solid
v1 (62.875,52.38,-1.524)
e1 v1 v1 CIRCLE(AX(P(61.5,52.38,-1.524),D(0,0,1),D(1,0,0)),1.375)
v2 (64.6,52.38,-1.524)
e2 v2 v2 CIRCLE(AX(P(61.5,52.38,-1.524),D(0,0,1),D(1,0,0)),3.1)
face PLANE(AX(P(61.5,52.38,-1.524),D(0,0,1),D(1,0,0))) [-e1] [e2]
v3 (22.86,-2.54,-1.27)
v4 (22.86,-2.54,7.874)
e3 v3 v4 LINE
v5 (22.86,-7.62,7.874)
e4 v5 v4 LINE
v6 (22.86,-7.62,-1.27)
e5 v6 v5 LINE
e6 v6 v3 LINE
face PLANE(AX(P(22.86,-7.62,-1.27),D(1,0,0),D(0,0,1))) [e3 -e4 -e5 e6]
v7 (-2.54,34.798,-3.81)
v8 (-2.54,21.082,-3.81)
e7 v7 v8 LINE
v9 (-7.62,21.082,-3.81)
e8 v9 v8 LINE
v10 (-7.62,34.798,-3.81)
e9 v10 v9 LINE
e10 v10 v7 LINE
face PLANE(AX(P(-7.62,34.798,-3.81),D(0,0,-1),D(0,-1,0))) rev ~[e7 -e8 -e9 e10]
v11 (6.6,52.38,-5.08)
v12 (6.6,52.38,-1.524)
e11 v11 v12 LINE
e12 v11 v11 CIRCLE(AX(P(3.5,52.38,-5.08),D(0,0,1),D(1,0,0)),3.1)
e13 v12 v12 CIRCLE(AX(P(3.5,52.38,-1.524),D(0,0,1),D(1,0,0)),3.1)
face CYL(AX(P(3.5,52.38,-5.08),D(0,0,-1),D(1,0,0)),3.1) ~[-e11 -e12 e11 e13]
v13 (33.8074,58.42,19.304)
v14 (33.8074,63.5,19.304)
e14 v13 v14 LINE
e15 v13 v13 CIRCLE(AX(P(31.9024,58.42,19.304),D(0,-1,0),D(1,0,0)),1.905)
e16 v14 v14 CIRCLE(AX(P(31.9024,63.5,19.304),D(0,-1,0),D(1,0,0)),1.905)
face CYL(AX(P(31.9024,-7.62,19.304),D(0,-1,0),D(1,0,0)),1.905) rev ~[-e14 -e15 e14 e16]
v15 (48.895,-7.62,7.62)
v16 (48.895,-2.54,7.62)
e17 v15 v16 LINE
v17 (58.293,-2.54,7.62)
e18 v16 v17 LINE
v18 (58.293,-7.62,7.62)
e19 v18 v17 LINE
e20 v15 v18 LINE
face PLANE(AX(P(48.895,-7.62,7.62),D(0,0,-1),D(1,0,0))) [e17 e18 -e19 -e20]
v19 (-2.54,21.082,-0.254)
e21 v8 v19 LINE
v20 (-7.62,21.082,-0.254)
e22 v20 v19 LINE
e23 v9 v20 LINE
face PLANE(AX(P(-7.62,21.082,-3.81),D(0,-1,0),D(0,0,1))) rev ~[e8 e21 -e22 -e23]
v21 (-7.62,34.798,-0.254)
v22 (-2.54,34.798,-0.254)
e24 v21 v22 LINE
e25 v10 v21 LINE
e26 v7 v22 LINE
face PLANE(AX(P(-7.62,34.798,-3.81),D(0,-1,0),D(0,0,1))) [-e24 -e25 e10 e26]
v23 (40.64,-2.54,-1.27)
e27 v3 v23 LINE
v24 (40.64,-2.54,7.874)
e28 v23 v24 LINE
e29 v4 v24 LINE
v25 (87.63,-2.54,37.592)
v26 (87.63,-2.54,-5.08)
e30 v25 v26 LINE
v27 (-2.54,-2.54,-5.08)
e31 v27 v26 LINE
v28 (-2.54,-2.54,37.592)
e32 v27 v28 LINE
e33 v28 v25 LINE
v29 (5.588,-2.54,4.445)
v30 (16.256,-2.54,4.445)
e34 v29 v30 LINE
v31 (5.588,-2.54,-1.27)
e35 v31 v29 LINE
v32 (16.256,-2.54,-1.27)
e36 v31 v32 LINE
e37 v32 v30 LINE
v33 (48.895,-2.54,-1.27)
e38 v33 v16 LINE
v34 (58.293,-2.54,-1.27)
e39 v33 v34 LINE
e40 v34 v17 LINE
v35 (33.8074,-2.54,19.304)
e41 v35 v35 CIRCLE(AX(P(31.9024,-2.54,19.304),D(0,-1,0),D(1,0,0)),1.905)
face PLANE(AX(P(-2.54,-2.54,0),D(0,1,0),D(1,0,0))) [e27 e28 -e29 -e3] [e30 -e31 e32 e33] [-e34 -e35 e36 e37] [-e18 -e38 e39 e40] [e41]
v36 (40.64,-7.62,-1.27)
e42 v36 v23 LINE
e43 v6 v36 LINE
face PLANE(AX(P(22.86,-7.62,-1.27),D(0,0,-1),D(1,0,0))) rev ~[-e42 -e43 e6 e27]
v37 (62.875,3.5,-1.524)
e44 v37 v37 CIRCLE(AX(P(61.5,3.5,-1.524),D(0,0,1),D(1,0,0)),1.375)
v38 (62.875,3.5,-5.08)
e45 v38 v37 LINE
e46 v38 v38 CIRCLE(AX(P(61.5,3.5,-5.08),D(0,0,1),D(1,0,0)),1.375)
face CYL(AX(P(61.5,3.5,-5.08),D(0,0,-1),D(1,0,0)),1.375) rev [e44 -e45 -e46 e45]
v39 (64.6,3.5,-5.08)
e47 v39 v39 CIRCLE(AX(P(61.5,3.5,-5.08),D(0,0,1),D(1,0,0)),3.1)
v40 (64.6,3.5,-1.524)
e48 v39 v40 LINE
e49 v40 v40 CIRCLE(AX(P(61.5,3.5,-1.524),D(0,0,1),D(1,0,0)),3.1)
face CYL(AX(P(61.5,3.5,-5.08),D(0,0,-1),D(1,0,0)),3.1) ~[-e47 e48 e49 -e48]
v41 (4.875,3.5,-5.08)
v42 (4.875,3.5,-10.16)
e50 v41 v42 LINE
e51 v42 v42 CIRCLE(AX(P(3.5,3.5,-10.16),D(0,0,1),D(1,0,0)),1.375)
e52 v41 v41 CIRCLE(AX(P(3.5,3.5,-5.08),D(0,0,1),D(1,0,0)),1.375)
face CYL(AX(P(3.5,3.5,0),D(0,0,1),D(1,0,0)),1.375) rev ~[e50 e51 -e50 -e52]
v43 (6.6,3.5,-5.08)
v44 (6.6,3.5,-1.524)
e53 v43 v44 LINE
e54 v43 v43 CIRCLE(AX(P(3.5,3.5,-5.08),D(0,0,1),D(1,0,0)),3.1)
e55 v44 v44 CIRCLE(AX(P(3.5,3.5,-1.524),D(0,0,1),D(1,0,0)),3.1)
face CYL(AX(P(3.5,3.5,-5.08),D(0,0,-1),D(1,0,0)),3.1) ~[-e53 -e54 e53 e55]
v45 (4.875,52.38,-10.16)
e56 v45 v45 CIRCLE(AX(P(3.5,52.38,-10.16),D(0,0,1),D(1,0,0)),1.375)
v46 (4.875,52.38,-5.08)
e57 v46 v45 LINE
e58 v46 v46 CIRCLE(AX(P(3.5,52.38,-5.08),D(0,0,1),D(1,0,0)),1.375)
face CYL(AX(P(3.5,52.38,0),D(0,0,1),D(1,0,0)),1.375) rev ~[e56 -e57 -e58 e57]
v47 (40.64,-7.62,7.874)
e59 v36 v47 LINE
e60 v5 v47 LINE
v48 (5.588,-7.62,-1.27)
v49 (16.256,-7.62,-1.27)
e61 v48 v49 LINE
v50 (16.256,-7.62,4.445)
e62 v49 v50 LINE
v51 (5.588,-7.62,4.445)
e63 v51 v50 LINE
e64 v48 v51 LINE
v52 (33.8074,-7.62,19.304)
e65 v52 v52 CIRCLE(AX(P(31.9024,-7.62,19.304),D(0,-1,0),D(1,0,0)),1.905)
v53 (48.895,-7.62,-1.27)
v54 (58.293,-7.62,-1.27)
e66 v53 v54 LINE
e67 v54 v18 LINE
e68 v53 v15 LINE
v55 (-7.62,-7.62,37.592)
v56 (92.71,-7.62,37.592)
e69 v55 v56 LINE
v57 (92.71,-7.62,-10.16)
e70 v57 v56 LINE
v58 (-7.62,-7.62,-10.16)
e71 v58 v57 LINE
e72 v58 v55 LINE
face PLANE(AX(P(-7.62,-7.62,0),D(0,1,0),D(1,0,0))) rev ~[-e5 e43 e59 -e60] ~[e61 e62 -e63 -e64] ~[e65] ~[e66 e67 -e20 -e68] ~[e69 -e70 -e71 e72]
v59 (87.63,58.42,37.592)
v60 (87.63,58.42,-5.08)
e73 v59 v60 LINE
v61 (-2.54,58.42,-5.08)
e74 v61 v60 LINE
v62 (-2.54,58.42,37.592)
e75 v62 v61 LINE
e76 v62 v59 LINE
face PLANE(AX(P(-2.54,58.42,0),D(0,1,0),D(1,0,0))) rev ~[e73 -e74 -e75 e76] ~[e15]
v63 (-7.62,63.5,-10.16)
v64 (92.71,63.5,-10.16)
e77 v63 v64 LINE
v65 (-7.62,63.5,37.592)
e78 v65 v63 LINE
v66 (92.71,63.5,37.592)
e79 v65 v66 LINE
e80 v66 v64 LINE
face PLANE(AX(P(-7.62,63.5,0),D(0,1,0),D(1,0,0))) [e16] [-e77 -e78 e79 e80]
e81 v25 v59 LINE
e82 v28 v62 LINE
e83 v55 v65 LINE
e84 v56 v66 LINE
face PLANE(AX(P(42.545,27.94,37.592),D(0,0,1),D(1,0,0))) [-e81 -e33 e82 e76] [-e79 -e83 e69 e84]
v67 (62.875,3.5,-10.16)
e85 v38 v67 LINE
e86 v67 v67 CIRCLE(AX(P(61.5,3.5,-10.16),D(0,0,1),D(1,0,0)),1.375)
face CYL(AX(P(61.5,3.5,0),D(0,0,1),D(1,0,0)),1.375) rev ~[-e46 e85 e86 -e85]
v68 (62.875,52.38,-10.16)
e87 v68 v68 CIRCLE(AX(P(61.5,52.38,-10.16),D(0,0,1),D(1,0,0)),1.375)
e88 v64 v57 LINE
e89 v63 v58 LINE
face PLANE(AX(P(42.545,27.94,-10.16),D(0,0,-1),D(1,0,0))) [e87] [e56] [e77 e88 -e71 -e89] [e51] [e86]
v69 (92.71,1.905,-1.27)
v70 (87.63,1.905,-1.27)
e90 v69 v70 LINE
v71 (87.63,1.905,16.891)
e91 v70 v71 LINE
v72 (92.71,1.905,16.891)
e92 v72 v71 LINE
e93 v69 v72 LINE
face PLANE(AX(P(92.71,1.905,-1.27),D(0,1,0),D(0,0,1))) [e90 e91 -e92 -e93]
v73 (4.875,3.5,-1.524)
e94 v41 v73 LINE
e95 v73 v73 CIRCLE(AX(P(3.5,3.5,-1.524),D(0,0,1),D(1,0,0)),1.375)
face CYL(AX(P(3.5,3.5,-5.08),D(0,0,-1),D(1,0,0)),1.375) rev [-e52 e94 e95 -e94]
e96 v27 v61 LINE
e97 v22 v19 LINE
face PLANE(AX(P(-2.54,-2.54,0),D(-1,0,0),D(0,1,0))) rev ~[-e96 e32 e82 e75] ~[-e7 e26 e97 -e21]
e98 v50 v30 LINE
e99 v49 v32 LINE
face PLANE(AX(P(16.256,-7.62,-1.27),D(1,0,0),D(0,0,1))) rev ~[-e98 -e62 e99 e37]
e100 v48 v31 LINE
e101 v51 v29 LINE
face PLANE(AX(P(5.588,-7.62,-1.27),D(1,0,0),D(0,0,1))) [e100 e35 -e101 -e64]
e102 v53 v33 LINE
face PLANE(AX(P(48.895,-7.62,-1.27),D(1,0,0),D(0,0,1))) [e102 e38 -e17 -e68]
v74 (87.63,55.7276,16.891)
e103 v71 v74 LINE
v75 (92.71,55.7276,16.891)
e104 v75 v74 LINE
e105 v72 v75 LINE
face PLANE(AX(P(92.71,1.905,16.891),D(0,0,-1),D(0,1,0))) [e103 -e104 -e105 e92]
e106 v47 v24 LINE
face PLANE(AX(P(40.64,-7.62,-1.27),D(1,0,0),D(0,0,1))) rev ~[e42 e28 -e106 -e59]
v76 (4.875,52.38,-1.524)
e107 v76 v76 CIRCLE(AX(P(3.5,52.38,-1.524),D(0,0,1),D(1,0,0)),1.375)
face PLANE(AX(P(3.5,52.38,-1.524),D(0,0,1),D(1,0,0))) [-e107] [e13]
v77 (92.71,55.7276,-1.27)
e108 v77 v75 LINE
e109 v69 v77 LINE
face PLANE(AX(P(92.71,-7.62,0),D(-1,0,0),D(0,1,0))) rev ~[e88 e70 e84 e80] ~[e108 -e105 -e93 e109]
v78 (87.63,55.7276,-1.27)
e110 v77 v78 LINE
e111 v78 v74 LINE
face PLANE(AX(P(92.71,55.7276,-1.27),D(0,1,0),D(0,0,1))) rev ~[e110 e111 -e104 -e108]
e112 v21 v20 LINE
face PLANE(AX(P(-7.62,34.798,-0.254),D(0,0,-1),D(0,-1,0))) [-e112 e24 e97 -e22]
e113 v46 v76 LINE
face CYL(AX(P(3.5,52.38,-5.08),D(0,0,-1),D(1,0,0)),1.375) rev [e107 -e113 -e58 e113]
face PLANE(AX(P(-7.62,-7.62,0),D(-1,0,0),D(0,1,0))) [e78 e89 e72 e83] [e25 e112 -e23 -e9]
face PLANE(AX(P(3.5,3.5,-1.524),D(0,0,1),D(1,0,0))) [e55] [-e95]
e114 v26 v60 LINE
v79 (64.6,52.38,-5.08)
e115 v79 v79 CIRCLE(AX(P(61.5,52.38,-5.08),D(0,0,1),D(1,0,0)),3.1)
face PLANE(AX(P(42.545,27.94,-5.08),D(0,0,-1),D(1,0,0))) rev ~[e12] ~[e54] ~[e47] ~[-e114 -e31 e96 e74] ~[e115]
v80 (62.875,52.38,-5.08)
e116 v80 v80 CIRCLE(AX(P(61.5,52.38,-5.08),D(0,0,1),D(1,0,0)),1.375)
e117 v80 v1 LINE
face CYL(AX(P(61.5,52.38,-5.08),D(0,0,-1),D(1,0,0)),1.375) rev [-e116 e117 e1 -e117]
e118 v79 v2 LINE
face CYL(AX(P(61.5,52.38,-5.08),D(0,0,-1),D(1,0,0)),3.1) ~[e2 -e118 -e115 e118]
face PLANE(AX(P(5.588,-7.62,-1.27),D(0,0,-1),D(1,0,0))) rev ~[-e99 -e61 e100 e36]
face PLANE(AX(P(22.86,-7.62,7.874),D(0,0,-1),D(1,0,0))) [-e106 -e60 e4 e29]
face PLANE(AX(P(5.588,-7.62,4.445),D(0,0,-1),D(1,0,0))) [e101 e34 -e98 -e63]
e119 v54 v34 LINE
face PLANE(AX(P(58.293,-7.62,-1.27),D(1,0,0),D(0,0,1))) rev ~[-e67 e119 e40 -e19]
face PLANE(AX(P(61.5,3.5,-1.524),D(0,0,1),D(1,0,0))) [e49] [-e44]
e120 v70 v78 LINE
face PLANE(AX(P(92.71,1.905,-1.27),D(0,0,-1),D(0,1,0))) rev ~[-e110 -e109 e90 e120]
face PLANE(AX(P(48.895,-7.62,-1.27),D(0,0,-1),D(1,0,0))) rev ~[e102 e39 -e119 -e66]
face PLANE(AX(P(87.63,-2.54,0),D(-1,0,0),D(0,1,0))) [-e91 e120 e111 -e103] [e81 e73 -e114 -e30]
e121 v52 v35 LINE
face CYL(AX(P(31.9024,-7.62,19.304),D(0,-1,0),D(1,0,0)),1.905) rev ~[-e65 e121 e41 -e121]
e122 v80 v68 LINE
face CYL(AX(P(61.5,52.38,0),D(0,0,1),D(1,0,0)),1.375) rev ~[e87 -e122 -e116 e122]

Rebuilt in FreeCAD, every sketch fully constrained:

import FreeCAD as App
import Part
import Sketcher

V = App.Vector
Q = App.Units.Quantity


def add_polygon(sketch, points):
    """Adds a closed chain of lines whose ends are joined by coincident constraints."""
    first, n = sketch.GeometryCount, len(points)
    for a, b in zip(points, points[1:] + points[:1]):
        sketch.addGeometry(Part.LineSegment(App.Vector(*a, 0), App.Vector(*b, 0)), False)
    for i in range(n):
        sketch.addConstraint(Sketcher.Constraint("Coincident", first + i, 2, first + (i + 1) % n, 1))

doc = App.newDocument("Part")
body = doc.addObject("PartDesign::Body", "Body")

sketch1 = body.newObject("Sketcher::SketchObject", "Sketch")
sketch1.AttachmentSupport = (doc.getObject("XY_Plane"), [""])
sketch1.MapMode = "FlatFace"
add_polygon(sketch1, [(-7.62, 63.5), (-7.62, -7.62), (92.71, -7.62), (92.71, 63.5)])
add_polygon(sketch1, [(87.63, -2.54), (-2.54, -2.54), (-2.54, 58.42), (87.63, 58.42)])
sketch1.addConstraint([
    Sketcher.Constraint("Vertical", 0),
    Sketcher.Constraint("Horizontal", 1),
    Sketcher.Constraint("Vertical", 2),
    Sketcher.Constraint("Horizontal", 3),
    Sketcher.Constraint("Horizontal", 4),
    Sketcher.Constraint("Vertical", 5),
    Sketcher.Constraint("Horizontal", 6),
    Sketcher.Constraint("Vertical", 7),
    Sketcher.Constraint("DistanceY", 0, 2, 0, 1, Q("2.8 in")),
    Sketcher.Constraint("DistanceY", 5, 1, 5, 2, Q("2.4 in")),
    Sketcher.Constraint("DistanceX", 1, 1, 1, 2, Q("3.95 in")),
    Sketcher.Constraint("DistanceX", 4, 2, 4, 1, Q("3.55 in")),
    Sketcher.Constraint("DistanceX", 0, 2, -1, 1, Q("0.3 in")),
    Sketcher.Constraint("DistanceY", 0, 2, -1, 1, Q("0.3 in")),
    Sketcher.Constraint("DistanceX", 4, 2, -1, 1, Q("0.1 in")),
    Sketcher.Constraint("DistanceY", 4, 2, -1, 1, Q("0.1 in")),
])
pad1 = body.newObject("PartDesign::Pad", "Pad")
pad1.Profile = sketch1
pad1.Length = Q("0.2 in")
pad1.Reversed = True

sketch2 = body.newObject("Sketcher::SketchObject", "Sketch001")
sketch2.AttachmentSupport = (doc.getObject("XY_Plane"), [""])
sketch2.MapMode = "FlatFace"
sketch2.AttachmentOffset = App.Placement(V(0, 0, -0.2 * 25.4), App.Rotation())
add_polygon(sketch2, [(-7.62, -7.62), (-7.62, 63.5), (92.71, 63.5), (92.71, -7.62)])
sketch2.addConstraint([
    Sketcher.Constraint("Vertical", 0),
    Sketcher.Constraint("Horizontal", 1),
    Sketcher.Constraint("Vertical", 2),
    Sketcher.Constraint("Horizontal", 3),
    Sketcher.Constraint("DistanceY", 0, 1, 0, 2, Q("2.8 in")),
    Sketcher.Constraint("DistanceX", 1, 1, 1, 2, Q("3.95 in")),
    Sketcher.Constraint("DistanceX", 0, 2, -1, 1, Q("0.3 in")),
    Sketcher.Constraint("DistanceY", -1, 1, 0, 2, Q("2.5 in")),
])
pad2 = body.newObject("PartDesign::Pad", "Pad001")
pad2.Profile = sketch2
pad2.Length = Q("0.2 in")
pad2.Reversed = True

sketch3 = body.newObject("Sketcher::SketchObject", "Sketch002")
sketch3.AttachmentSupport = (doc.getObject("XY_Plane"), [""])
sketch3.MapMode = "FlatFace"
sketch3.addGeometry([
    Part.Circle(V(3.5, 52.38, 0), V(0, 0, 1), 1.375),
    Part.Circle(V(61.5, 52.38, 0), V(0, 0, 1), 1.375),
    Part.Circle(V(61.5, 3.5, 0), V(0, 0, 1), 1.375),
    Part.Circle(V(3.5, 3.5, 0), V(0, 0, 1), 1.375),
], False)
sketch3.addConstraint([
    Sketcher.Constraint("Equal", 0, 1),
    Sketcher.Constraint("Equal", 1, 2),
    Sketcher.Constraint("Equal", 2, 3),
    Sketcher.Constraint("Horizontal", 0, 3, 1, 3),
    Sketcher.Constraint("Horizontal", 2, 3, 3, 3),
    Sketcher.Constraint("Vertical", 1, 3, 2, 3),
    Sketcher.Constraint("Vertical", 0, 3, 3, 3),
    Sketcher.Constraint("Diameter", 0, Q("2.75 mm")),
    Sketcher.Constraint("DistanceX", -1, 1, 0, 3, Q("3.5 mm")),
    Sketcher.Constraint("DistanceY", -1, 1, 0, 3, Q("52.38 mm")),
    Sketcher.Constraint("DistanceX", -1, 1, 1, 3, Q("61.5 mm")),
    Sketcher.Constraint("DistanceY", -1, 1, 2, 3, Q("3.5 mm")),
])
pocket1 = body.newObject("PartDesign::Pocket", "Pocket")
pocket1.Profile = sketch3
pocket1.Length = Q("1 in")

sketch4 = body.newObject("Sketcher::SketchObject", "Sketch003")
sketch4.AttachmentSupport = (doc.getObject("XY_Plane"), [""])
sketch4.MapMode = "FlatFace"
sketch4.AttachmentOffset = App.Placement(V(0, 0, -0.2 * 25.4), App.Rotation())
sketch4.addGeometry([
    Part.Circle(V(3.5, 52.38, 0), V(0, 0, 1), 3.1),
    Part.Circle(V(3.5, 52.38, 0), V(0, 0, 1), 1.375),
    Part.Circle(V(61.5, 52.38, 0), V(0, 0, 1), 3.1),
    Part.Circle(V(61.5, 52.38, 0), V(0, 0, 1), 1.375),
    Part.Circle(V(61.5, 3.5, 0), V(0, 0, 1), 3.1),
    Part.Circle(V(61.5, 3.5, 0), V(0, 0, 1), 1.375),
    Part.Circle(V(3.5, 3.5, 0), V(0, 0, 1), 3.1),
    Part.Circle(V(3.5, 3.5, 0), V(0, 0, 1), 1.375),
], False)
sketch4.addConstraint([
    Sketcher.Constraint("Coincident", 1, 3, 0, 3),
    Sketcher.Constraint("Coincident", 3, 3, 2, 3),
    Sketcher.Constraint("Coincident", 5, 3, 4, 3),
    Sketcher.Constraint("Coincident", 7, 3, 6, 3),
    Sketcher.Constraint("Equal", 0, 2),
    Sketcher.Constraint("Equal", 1, 3),
    Sketcher.Constraint("Equal", 2, 4),
    Sketcher.Constraint("Equal", 3, 5),
    Sketcher.Constraint("Equal", 4, 6),
    Sketcher.Constraint("Equal", 5, 7),
    Sketcher.Constraint("Horizontal", 1, 3, 2, 3),
    Sketcher.Constraint("Horizontal", 5, 3, 6, 3),
    Sketcher.Constraint("Vertical", 3, 3, 4, 3),
    Sketcher.Constraint("Vertical", 1, 3, 6, 3),
    Sketcher.Constraint("Diameter", 0, Q("6.2 mm")),
    Sketcher.Constraint("Diameter", 1, Q("2.75 mm")),
    Sketcher.Constraint("DistanceX", -1, 1, 0, 3, Q("3.5 mm")),
    Sketcher.Constraint("DistanceY", -1, 1, 0, 3, Q("52.38 mm")),
    Sketcher.Constraint("DistanceX", -1, 1, 2, 3, Q("61.5 mm")),
    Sketcher.Constraint("DistanceY", -1, 1, 4, 3, Q("3.5 mm")),
])
pad3 = body.newObject("PartDesign::Pad", "Pad002")
pad3.Profile = sketch4
pad3.Length = Q("0.14 in")

sketch5 = body.newObject("Sketcher::SketchObject", "Sketch004")
sketch5.AttachmentSupport = (doc.getObject("XY_Plane"), [""])
sketch5.MapMode = "FlatFace"
add_polygon(sketch5, [(-7.62, 63.5), (-7.62, -7.62), (92.71, -7.62), (92.71, 63.5)])
add_polygon(sketch5, [(87.63, -2.54), (-2.54, -2.54), (-2.54, 58.42), (87.63, 58.42)])
sketch5.addConstraint([
    Sketcher.Constraint("Vertical", 0),
    Sketcher.Constraint("Horizontal", 1),
    Sketcher.Constraint("Vertical", 2),
    Sketcher.Constraint("Horizontal", 3),
    Sketcher.Constraint("Horizontal", 4),
    Sketcher.Constraint("Vertical", 5),
    Sketcher.Constraint("Horizontal", 6),
    Sketcher.Constraint("Vertical", 7),
    Sketcher.Constraint("DistanceY", 0, 2, 0, 1, Q("2.8 in")),
    Sketcher.Constraint("DistanceY", 5, 1, 5, 2, Q("2.4 in")),
    Sketcher.Constraint("DistanceX", 1, 1, 1, 2, Q("3.95 in")),
    Sketcher.Constraint("DistanceX", 4, 2, 4, 1, Q("3.55 in")),
    Sketcher.Constraint("DistanceX", 0, 2, -1, 1, Q("0.3 in")),
    Sketcher.Constraint("DistanceY", 0, 2, -1, 1, Q("0.3 in")),
    Sketcher.Constraint("DistanceX", 4, 2, -1, 1, Q("0.1 in")),
    Sketcher.Constraint("DistanceY", 4, 2, -1, 1, Q("0.1 in")),
])
pad4 = body.newObject("PartDesign::Pad", "Pad003")
pad4.Profile = sketch5
pad4.Length = Q("1.48 in")

sketch6 = body.newObject("Sketcher::SketchObject", "Sketch005")
sketch6.AttachmentSupport = (doc.getObject("YZ_Plane"), [""])
sketch6.MapMode = "FlatFace"
sketch6.AttachmentOffset = App.Placement(V(0, 0, -0.3 * 25.4), App.Rotation())
add_polygon(sketch6, [(34.798, -0.254), (34.798, -3.81), (21.082, -3.81), (21.082, -0.254)])
sketch6.addConstraint([
    Sketcher.Constraint("Vertical", 0),
    Sketcher.Constraint("Horizontal", 1),
    Sketcher.Constraint("Vertical", 2),
    Sketcher.Constraint("Horizontal", 3),
    Sketcher.Constraint("DistanceX", 1, 2, 1, 1, Q("0.54 in")),
    Sketcher.Constraint("DistanceY", 0, 2, 0, 1, Q("0.14 in")),
    Sketcher.Constraint("DistanceX", -1, 1, 0, 2, Q("1.37 in")),
    Sketcher.Constraint("DistanceY", 0, 2, -1, 1, Q("0.15 in")),
])
pocket2 = body.newObject("PartDesign::Pocket", "Pocket001")
pocket2.Profile = sketch6
pocket2.Length = Q("0.2 in")
pocket2.Reversed = True

sketch7 = body.newObject("Sketcher::SketchObject", "Sketch006")
sketch7.AttachmentSupport = (doc.getObject("XZ_Plane"), [""])
sketch7.MapMode = "FlatFace"
sketch7.AttachmentOffset = App.Placement(V(0, 0, 0.3 * 25.4), App.Rotation())
add_polygon(sketch7, [(5.588, 4.445), (5.588, -1.27), (16.256, -1.27), (16.256, 4.445)])
add_polygon(sketch7, [(22.86, 7.874), (22.86, -1.27), (40.64, -1.27), (40.64, 7.874)])
add_polygon(sketch7, [(48.895, 7.62), (48.895, -1.27), (58.293, -1.27), (58.293, 7.62)])
sketch7.addConstraint([
    Sketcher.Constraint("Vertical", 0),
    Sketcher.Constraint("Horizontal", 1),
    Sketcher.Constraint("Vertical", 2),
    Sketcher.Constraint("Horizontal", 3),
    Sketcher.Constraint("Vertical", 4),
    Sketcher.Constraint("Horizontal", 5),
    Sketcher.Constraint("Vertical", 6),
    Sketcher.Constraint("Horizontal", 7),
    Sketcher.Constraint("Vertical", 8),
    Sketcher.Constraint("Horizontal", 9),
    Sketcher.Constraint("Vertical", 10),
    Sketcher.Constraint("Horizontal", 11),
    Sketcher.Constraint("Horizontal", 1, 2, 4, 2),
    Sketcher.Constraint("Horizontal", 5, 2, 8, 2),
    Sketcher.Constraint("DistanceX", 5, 1, 5, 2, Q("0.7 in")),
    Sketcher.Constraint("DistanceX", 1, 1, 1, 2, Q("0.42 in")),
    Sketcher.Constraint("DistanceX", 9, 1, 9, 2, Q("0.37 in")),
    Sketcher.Constraint("DistanceY", 4, 2, 4, 1, Q("0.36 in")),
    Sketcher.Constraint("DistanceY", 8, 2, 8, 1, Q("0.35 in")),
    Sketcher.Constraint("DistanceX", -1, 1, 4, 2, Q("0.9 in")),
    Sketcher.Constraint("DistanceY", -1, 1, 10, 2, Q("0.3 in")),
    Sketcher.Constraint("DistanceY", 0, 2, 0, 1, Q("0.225 in")),
    Sketcher.Constraint("DistanceX", -1, 1, 0, 2, Q("0.22 in")),
    Sketcher.Constraint("DistanceX", -1, 1, 8, 2, Q("1.925 in")),
])
pocket3 = body.newObject("PartDesign::Pocket", "Pocket002")
pocket3.Profile = sketch7
pocket3.Length = Q("0.2 in")

sketch8 = body.newObject("Sketcher::SketchObject", "Sketch007")
sketch8.AttachmentSupport = (doc.getObject("YZ_Plane"), [""])
sketch8.MapMode = "FlatFace"
sketch8.AttachmentOffset = App.Placement(V(0, 0, 3.65 * 25.4), App.Rotation())
add_polygon(sketch8, [(1.905, 16.891), (1.905, -1.27), (55.7276, -1.27), (55.7276, 16.891)])
sketch8.addConstraint([
    Sketcher.Constraint("Vertical", 0),
    Sketcher.Constraint("Horizontal", 1),
    Sketcher.Constraint("Vertical", 2),
    Sketcher.Constraint("Horizontal", 3),
    Sketcher.Constraint("DistanceX", 1, 1, 1, 2, Q("2.119 in")),
    Sketcher.Constraint("DistanceY", 0, 2, 0, 1, Q("0.715 in")),
    Sketcher.Constraint("DistanceY", 0, 2, -1, 1, Q("0.05 in")),
    Sketcher.Constraint("DistanceX", -1, 1, 0, 2, Q("0.075 in")),
])
pocket4 = body.newObject("PartDesign::Pocket", "Pocket003")
pocket4.Profile = sketch8
pocket4.Length = Q("0.2 in")

sketch9 = body.newObject("Sketcher::SketchObject", "Sketch008")
sketch9.AttachmentSupport = (doc.getObject("XZ_Plane"), [""])
sketch9.MapMode = "FlatFace"
sketch9.AttachmentOffset = App.Placement(V(0, 0, 0.3 * 25.4), App.Rotation())
sketch9.addGeometry(Part.Circle(V(31.9024, 19.304, 0), V(0, 0, 1), 1.905), False)
sketch9.addConstraint([
    Sketcher.Constraint("Diameter", 0, Q("0.15 in")),
    Sketcher.Constraint("DistanceY", -1, 1, 0, 3, Q("0.76 in")),
    Sketcher.Constraint("DistanceX", -1, 1, 0, 3, Q("1.256 in")),
])
pocket5 = body.newObject("PartDesign::Pocket", "Pocket004")
pocket5.Profile = sketch9
pocket5.Type = "ThroughAll"

doc.recompute()
